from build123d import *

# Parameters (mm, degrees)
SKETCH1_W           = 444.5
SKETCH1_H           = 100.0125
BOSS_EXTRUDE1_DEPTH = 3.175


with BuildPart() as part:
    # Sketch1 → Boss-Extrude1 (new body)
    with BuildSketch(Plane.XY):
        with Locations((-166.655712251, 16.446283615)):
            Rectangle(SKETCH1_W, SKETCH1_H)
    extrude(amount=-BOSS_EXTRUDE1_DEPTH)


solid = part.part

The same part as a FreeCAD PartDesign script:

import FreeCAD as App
import Part
import Sketcher

V = App.Vector
Q = App.Units.Quantity

doc = App.newDocument("Part")
body = doc.addObject("PartDesign::Body", "Body")

# Sketch on XY plane
sketch1 = body.newObject("Sketcher::SketchObject", "Sketch")
sketch1.AttachmentSupport = (doc.getObject("XY_Plane"), [""])
sketch1.MapMode = "FlatFace"
sketch1.addGeometry([
    Part.LineSegment(V(-388.905712, 66.452534, 0), V(-388.905712, -33.559966, 0)),
    Part.LineSegment(V(-388.905712, -33.559966, 0), V(55.594288, -33.559966, 0)),
    Part.LineSegment(V(55.594288, -33.559966, 0), V(55.594288, 66.452534, 0)),
    Part.LineSegment(V(55.594288, 66.452534, 0), V(-388.905712, 66.452534, 0)),
], False)
sketch1.addConstraint([
    Sketcher.Constraint("Coincident", 0, 2, 1, 1),
    Sketcher.Constraint("Coincident", 1, 2, 2, 1),
    Sketcher.Constraint("Coincident", 2, 2, 3, 1),
    Sketcher.Constraint("Coincident", 3, 2, 0, 1),
    Sketcher.Constraint("Vertical", 0),
    Sketcher.Constraint("Horizontal", 1),
    Sketcher.Constraint("Vertical", 2),
    Sketcher.Constraint("Horizontal", 3),
    Sketcher.Constraint("DistanceX", 1, 1, 1, 2, Q("17.5 in")),
    Sketcher.Constraint("DistanceY", 0, 2, 0, 1, Q("3.9375 in")),
    Sketcher.Constraint("DistanceX", 0, 2, -1, 1, Q("388.905712 mm")),
    Sketcher.Constraint("DistanceY", 0, 2, -1, 1, Q("33.559966 mm")),
])
pad1 = body.newObject("PartDesign::Pad", "Pad")
pad1.Profile = sketch1
pad1.Length = Q("0.125 in")
pad1.Reversed = True

doc.recompute()
